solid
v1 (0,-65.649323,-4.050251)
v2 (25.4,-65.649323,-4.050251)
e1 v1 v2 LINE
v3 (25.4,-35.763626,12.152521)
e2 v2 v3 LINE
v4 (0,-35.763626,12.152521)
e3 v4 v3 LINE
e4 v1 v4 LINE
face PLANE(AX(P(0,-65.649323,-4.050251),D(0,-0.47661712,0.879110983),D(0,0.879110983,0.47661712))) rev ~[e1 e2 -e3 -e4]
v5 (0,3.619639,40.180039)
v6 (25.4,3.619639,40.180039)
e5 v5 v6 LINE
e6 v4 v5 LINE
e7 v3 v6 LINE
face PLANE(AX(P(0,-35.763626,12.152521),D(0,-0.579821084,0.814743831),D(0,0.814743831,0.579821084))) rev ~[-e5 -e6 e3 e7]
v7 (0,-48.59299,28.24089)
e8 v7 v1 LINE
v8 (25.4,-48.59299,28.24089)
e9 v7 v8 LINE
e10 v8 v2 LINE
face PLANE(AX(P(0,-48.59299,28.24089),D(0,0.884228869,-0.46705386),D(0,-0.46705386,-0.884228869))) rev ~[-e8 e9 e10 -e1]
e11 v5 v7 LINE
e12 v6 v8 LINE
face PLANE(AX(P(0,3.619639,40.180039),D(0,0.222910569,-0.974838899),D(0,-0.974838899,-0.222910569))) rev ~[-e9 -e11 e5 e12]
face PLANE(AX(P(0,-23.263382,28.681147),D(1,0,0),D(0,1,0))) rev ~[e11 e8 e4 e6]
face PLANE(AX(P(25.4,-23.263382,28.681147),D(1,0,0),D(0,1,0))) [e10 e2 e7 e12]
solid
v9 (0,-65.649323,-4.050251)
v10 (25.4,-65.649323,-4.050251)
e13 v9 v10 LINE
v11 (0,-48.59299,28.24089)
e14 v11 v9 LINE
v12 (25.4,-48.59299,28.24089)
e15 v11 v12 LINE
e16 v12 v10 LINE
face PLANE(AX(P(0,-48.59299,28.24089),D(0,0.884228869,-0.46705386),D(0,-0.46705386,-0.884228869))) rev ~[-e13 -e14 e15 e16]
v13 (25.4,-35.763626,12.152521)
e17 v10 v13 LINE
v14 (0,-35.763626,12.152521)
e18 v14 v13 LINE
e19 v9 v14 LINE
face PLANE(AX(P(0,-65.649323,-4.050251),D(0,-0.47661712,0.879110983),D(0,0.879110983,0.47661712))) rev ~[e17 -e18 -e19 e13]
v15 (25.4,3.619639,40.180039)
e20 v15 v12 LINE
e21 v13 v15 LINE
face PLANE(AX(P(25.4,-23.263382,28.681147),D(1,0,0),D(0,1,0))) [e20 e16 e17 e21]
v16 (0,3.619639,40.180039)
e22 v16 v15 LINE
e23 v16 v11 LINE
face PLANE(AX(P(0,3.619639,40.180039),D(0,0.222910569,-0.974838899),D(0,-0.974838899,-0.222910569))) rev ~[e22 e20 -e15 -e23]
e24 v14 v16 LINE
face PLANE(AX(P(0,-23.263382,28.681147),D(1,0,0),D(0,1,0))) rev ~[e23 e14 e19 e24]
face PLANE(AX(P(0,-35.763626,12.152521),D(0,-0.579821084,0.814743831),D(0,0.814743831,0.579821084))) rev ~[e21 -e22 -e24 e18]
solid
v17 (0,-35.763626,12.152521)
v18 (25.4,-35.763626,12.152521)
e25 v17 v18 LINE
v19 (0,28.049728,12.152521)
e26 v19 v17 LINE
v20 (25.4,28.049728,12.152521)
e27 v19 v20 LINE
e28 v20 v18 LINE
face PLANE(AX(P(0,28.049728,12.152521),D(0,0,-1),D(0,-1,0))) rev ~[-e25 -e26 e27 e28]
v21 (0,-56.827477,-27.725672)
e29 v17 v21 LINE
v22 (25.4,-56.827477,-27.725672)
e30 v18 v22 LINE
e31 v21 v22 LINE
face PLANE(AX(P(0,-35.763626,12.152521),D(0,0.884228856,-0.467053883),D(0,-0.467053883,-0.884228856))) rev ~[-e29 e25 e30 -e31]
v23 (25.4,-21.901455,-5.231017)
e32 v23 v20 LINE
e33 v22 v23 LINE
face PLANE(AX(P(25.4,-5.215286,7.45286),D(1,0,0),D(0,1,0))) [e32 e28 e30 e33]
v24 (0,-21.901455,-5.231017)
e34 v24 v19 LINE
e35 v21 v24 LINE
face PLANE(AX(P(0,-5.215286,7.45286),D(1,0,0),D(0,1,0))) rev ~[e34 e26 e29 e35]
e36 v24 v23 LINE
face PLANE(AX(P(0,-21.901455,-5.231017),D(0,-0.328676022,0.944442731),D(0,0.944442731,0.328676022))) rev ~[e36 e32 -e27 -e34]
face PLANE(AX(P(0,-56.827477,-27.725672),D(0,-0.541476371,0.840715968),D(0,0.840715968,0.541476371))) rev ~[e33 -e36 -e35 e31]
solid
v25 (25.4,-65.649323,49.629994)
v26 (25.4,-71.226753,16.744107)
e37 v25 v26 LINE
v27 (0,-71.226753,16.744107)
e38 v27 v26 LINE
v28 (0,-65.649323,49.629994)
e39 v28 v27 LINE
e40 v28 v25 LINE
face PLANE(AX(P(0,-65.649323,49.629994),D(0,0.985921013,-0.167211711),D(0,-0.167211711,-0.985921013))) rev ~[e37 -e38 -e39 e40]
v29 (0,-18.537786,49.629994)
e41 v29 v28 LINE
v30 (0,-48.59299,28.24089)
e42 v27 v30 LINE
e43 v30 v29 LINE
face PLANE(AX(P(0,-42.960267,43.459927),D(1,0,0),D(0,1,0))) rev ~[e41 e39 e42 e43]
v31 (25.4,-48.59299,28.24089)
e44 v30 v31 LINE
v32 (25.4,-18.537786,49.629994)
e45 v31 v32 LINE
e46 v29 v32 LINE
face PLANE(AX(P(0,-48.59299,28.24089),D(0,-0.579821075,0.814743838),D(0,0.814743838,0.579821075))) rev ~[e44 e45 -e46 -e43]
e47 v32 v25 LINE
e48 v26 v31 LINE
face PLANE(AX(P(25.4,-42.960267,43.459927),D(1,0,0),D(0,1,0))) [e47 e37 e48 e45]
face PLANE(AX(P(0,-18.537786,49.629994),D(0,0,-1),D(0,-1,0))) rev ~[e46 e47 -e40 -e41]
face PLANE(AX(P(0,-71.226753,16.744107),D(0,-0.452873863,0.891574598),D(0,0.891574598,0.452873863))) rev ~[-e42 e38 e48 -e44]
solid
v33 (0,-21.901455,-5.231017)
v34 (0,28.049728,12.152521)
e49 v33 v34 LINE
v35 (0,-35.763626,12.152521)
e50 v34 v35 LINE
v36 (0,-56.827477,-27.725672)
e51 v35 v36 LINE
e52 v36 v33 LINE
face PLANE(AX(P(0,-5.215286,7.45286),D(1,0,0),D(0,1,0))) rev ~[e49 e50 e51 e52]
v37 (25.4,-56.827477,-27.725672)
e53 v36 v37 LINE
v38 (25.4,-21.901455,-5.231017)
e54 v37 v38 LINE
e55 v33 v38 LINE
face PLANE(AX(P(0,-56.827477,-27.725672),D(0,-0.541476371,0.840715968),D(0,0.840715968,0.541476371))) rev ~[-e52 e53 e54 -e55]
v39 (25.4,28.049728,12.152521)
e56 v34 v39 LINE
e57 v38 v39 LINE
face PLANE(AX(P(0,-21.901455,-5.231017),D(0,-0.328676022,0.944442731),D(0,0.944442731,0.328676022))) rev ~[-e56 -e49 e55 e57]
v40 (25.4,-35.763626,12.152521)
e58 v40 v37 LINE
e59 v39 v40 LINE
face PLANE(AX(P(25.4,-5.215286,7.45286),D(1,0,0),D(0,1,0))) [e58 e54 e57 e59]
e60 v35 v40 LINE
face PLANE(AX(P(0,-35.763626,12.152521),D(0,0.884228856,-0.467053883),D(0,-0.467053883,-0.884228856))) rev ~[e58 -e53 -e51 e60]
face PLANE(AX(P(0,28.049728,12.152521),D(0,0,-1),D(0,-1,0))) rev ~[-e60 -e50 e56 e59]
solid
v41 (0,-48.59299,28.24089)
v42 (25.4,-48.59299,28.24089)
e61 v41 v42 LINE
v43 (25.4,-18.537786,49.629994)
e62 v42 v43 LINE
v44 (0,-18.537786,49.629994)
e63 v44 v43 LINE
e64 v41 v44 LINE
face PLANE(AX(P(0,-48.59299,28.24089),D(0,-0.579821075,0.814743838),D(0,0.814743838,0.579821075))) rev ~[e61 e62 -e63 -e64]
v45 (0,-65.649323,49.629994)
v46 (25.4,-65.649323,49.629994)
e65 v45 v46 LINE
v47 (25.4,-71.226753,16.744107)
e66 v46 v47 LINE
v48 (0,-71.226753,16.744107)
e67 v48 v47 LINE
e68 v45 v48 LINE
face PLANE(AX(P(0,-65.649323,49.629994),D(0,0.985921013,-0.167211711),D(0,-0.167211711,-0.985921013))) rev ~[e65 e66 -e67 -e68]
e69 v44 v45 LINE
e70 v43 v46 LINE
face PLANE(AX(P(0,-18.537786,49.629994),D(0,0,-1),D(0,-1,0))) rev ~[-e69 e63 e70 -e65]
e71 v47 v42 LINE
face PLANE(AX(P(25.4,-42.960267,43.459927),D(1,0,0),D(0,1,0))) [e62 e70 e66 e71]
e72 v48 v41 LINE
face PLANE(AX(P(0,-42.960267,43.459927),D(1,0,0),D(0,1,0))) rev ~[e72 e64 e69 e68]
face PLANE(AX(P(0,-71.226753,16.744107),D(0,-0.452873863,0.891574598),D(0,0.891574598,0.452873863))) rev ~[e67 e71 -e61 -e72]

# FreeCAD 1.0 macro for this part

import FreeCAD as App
import Part
import Sketcher
from FreeCAD import Vector
Q = App.Units.Quantity


def add_polygon(sketch, points):
    """Adds a closed chain of lines whose ends are joined by coincident constraints."""
    first, n = sketch.GeometryCount, len(points)
    for a, b in zip(points, points[1:] + points[:1]):
        sketch.addGeometry(Part.LineSegment(App.Vector(*a, 0), App.Vector(*b, 0)), False)
    for i in range(n):
        sketch.addConstraint(Sketcher.Constraint("Coincident", first + i, 2, first + (i + 1) % n, 1))

doc = App.newDocument("Part")
body = doc.addObject("PartDesign::Body", "Body")
body.AllowCompound = True

sketch1 = body.newObject("Sketcher::SketchObject", "Sketch")
sketch1.AttachmentSupport = (doc.getObject("YZ_Plane"), [""])
sketch1.MapMode = "FlatFace"
add_polygon(sketch1, [(-19, 50), (-66, 50), (-71, 17), (-49, 28)])
add_polygon(sketch1, [(28, 12), (-36, 12), (-57, -28), (-22, -5)])
add_polygon(sketch1, [(4, 40), (-49, 28), (-66, -4), (-36, 12)])
sketch1.addConstraint([
    Sketcher.Constraint("Horizontal", 0),
    Sketcher.Constraint("Horizontal", 4),
    Sketcher.Constraint("Coincident", 8, 2, 2, 2),
    Sketcher.Constraint("Coincident", 10, 2, 4, 2),
    Sketcher.Constraint("Parallel", 5, 9),
    Sketcher.Constraint("Parallel", 3, 11),
    Sketcher.Constraint("Vertical", 0, 2, 9, 2),
    Sketcher.Constraint("Distance", 10, Q("1.3384001 in")),
    Sketcher.Constraint("Distance", 1, 33.355499),
    Sketcher.Constraint("DistanceX", 1, 2, 6, 2, 49.325298),
    Sketcher.Constraint("Distance", 2, 25.386281),
    Sketcher.Constraint("Distance", 6, 41.543189),
    Sketcher.Constraint("Distance", 11, 48.338218),
    Sketcher.Constraint("DistanceX", 0, 2, 0, 1, 47.111537),
    Sketcher.Constraint("DistanceX", 4, 2, 4, 1, 63.813354),
    Sketcher.Constraint("DistanceX", 2, 2, -1, 1, 48.59299),
    Sketcher.Constraint("DistanceY", -1, 1, 2, 2, 28.24089),
    Sketcher.Constraint("DistanceY", -1, 1, 4, 2, 12.152521),
    Sketcher.Constraint("DistanceY", 5, 2, -1, 1, 27.725672),
    Sketcher.Constraint("DistanceX", -1, 1, 7, 2, 28.049728),
    Sketcher.Constraint("DistanceY", 9, 2, -1, 1, 4.050251),
    Sketcher.Constraint("DistanceX", -1, 1, 11, 2, 3.619639),
])
pad1 = body.newObject("PartDesign::Pad", "Pad")
pad1.Profile = sketch1
pad1.Length = Q("1 in")
body2 = doc.addObject("PartDesign::Body", "Body001")
body2.AllowCompound = True

sketch2 = body2.newObject("Sketcher::SketchObject", "Sketch001")
sketch2.AttachmentSupport = (doc.getObject("YZ_Plane001"), [""])
sketch2.MapMode = "FlatFace"
add_polygon(sketch2, [(-19, 50), (-66, 50), (-71, 17), (-49, 28)])
add_polygon(sketch2, [(28, 12), (-36, 12), (-57, -28), (-22, -5)])
add_polygon(sketch2, [(4, 40), (-49, 28), (-66, -4), (-36, 12)])
sketch2.addConstraint([
    Sketcher.Constraint("Horizontal", 0),
    Sketcher.Constraint("Horizontal", 4),
    Sketcher.Constraint("Coincident", 8, 2, 2, 2),
    Sketcher.Constraint("Coincident", 10, 2, 4, 2),
    Sketcher.Constraint("Parallel", 5, 9),
    Sketcher.Constraint("Parallel", 3, 11),
    Sketcher.Constraint("Vertical", 0, 2, 9, 2),
    Sketcher.Constraint("Distance", 10, Q("1.3384001 in")),
    Sketcher.Constraint("Distance", 1, 33.355499),
    Sketcher.Constraint("DistanceX", 1, 2, 6, 2, 49.325298),
    Sketcher.Constraint("Distance", 2, 25.386281),
    Sketcher.Constraint("Distance", 6, 41.543189),
    Sketcher.Constraint("Distance", 11, 48.338218),
    Sketcher.Constraint("DistanceX", 0, 2, 0, 1, 47.111537),
    Sketcher.Constraint("DistanceX", 4, 2, 4, 1, 63.813354),
    Sketcher.Constraint("DistanceX", 2, 2, -1, 1, 48.59299),
    Sketcher.Constraint("DistanceY", -1, 1, 2, 2, 28.24089),
    Sketcher.Constraint("DistanceY", -1, 1, 4, 2, 12.152521),
    Sketcher.Constraint("DistanceY", 5, 2, -1, 1, 27.725672),
    Sketcher.Constraint("DistanceX", -1, 1, 7, 2, 28.049728),
    Sketcher.Constraint("DistanceY", 9, 2, -1, 1, 4.050251),
    Sketcher.Constraint("DistanceX", -1, 1, 11, 2, 3.619639),
])
pad2 = body2.newObject("PartDesign::Pad", "Pad001")
pad2.Profile = sketch2
pad2.Length = Q("1 in")

doc.recompute()
